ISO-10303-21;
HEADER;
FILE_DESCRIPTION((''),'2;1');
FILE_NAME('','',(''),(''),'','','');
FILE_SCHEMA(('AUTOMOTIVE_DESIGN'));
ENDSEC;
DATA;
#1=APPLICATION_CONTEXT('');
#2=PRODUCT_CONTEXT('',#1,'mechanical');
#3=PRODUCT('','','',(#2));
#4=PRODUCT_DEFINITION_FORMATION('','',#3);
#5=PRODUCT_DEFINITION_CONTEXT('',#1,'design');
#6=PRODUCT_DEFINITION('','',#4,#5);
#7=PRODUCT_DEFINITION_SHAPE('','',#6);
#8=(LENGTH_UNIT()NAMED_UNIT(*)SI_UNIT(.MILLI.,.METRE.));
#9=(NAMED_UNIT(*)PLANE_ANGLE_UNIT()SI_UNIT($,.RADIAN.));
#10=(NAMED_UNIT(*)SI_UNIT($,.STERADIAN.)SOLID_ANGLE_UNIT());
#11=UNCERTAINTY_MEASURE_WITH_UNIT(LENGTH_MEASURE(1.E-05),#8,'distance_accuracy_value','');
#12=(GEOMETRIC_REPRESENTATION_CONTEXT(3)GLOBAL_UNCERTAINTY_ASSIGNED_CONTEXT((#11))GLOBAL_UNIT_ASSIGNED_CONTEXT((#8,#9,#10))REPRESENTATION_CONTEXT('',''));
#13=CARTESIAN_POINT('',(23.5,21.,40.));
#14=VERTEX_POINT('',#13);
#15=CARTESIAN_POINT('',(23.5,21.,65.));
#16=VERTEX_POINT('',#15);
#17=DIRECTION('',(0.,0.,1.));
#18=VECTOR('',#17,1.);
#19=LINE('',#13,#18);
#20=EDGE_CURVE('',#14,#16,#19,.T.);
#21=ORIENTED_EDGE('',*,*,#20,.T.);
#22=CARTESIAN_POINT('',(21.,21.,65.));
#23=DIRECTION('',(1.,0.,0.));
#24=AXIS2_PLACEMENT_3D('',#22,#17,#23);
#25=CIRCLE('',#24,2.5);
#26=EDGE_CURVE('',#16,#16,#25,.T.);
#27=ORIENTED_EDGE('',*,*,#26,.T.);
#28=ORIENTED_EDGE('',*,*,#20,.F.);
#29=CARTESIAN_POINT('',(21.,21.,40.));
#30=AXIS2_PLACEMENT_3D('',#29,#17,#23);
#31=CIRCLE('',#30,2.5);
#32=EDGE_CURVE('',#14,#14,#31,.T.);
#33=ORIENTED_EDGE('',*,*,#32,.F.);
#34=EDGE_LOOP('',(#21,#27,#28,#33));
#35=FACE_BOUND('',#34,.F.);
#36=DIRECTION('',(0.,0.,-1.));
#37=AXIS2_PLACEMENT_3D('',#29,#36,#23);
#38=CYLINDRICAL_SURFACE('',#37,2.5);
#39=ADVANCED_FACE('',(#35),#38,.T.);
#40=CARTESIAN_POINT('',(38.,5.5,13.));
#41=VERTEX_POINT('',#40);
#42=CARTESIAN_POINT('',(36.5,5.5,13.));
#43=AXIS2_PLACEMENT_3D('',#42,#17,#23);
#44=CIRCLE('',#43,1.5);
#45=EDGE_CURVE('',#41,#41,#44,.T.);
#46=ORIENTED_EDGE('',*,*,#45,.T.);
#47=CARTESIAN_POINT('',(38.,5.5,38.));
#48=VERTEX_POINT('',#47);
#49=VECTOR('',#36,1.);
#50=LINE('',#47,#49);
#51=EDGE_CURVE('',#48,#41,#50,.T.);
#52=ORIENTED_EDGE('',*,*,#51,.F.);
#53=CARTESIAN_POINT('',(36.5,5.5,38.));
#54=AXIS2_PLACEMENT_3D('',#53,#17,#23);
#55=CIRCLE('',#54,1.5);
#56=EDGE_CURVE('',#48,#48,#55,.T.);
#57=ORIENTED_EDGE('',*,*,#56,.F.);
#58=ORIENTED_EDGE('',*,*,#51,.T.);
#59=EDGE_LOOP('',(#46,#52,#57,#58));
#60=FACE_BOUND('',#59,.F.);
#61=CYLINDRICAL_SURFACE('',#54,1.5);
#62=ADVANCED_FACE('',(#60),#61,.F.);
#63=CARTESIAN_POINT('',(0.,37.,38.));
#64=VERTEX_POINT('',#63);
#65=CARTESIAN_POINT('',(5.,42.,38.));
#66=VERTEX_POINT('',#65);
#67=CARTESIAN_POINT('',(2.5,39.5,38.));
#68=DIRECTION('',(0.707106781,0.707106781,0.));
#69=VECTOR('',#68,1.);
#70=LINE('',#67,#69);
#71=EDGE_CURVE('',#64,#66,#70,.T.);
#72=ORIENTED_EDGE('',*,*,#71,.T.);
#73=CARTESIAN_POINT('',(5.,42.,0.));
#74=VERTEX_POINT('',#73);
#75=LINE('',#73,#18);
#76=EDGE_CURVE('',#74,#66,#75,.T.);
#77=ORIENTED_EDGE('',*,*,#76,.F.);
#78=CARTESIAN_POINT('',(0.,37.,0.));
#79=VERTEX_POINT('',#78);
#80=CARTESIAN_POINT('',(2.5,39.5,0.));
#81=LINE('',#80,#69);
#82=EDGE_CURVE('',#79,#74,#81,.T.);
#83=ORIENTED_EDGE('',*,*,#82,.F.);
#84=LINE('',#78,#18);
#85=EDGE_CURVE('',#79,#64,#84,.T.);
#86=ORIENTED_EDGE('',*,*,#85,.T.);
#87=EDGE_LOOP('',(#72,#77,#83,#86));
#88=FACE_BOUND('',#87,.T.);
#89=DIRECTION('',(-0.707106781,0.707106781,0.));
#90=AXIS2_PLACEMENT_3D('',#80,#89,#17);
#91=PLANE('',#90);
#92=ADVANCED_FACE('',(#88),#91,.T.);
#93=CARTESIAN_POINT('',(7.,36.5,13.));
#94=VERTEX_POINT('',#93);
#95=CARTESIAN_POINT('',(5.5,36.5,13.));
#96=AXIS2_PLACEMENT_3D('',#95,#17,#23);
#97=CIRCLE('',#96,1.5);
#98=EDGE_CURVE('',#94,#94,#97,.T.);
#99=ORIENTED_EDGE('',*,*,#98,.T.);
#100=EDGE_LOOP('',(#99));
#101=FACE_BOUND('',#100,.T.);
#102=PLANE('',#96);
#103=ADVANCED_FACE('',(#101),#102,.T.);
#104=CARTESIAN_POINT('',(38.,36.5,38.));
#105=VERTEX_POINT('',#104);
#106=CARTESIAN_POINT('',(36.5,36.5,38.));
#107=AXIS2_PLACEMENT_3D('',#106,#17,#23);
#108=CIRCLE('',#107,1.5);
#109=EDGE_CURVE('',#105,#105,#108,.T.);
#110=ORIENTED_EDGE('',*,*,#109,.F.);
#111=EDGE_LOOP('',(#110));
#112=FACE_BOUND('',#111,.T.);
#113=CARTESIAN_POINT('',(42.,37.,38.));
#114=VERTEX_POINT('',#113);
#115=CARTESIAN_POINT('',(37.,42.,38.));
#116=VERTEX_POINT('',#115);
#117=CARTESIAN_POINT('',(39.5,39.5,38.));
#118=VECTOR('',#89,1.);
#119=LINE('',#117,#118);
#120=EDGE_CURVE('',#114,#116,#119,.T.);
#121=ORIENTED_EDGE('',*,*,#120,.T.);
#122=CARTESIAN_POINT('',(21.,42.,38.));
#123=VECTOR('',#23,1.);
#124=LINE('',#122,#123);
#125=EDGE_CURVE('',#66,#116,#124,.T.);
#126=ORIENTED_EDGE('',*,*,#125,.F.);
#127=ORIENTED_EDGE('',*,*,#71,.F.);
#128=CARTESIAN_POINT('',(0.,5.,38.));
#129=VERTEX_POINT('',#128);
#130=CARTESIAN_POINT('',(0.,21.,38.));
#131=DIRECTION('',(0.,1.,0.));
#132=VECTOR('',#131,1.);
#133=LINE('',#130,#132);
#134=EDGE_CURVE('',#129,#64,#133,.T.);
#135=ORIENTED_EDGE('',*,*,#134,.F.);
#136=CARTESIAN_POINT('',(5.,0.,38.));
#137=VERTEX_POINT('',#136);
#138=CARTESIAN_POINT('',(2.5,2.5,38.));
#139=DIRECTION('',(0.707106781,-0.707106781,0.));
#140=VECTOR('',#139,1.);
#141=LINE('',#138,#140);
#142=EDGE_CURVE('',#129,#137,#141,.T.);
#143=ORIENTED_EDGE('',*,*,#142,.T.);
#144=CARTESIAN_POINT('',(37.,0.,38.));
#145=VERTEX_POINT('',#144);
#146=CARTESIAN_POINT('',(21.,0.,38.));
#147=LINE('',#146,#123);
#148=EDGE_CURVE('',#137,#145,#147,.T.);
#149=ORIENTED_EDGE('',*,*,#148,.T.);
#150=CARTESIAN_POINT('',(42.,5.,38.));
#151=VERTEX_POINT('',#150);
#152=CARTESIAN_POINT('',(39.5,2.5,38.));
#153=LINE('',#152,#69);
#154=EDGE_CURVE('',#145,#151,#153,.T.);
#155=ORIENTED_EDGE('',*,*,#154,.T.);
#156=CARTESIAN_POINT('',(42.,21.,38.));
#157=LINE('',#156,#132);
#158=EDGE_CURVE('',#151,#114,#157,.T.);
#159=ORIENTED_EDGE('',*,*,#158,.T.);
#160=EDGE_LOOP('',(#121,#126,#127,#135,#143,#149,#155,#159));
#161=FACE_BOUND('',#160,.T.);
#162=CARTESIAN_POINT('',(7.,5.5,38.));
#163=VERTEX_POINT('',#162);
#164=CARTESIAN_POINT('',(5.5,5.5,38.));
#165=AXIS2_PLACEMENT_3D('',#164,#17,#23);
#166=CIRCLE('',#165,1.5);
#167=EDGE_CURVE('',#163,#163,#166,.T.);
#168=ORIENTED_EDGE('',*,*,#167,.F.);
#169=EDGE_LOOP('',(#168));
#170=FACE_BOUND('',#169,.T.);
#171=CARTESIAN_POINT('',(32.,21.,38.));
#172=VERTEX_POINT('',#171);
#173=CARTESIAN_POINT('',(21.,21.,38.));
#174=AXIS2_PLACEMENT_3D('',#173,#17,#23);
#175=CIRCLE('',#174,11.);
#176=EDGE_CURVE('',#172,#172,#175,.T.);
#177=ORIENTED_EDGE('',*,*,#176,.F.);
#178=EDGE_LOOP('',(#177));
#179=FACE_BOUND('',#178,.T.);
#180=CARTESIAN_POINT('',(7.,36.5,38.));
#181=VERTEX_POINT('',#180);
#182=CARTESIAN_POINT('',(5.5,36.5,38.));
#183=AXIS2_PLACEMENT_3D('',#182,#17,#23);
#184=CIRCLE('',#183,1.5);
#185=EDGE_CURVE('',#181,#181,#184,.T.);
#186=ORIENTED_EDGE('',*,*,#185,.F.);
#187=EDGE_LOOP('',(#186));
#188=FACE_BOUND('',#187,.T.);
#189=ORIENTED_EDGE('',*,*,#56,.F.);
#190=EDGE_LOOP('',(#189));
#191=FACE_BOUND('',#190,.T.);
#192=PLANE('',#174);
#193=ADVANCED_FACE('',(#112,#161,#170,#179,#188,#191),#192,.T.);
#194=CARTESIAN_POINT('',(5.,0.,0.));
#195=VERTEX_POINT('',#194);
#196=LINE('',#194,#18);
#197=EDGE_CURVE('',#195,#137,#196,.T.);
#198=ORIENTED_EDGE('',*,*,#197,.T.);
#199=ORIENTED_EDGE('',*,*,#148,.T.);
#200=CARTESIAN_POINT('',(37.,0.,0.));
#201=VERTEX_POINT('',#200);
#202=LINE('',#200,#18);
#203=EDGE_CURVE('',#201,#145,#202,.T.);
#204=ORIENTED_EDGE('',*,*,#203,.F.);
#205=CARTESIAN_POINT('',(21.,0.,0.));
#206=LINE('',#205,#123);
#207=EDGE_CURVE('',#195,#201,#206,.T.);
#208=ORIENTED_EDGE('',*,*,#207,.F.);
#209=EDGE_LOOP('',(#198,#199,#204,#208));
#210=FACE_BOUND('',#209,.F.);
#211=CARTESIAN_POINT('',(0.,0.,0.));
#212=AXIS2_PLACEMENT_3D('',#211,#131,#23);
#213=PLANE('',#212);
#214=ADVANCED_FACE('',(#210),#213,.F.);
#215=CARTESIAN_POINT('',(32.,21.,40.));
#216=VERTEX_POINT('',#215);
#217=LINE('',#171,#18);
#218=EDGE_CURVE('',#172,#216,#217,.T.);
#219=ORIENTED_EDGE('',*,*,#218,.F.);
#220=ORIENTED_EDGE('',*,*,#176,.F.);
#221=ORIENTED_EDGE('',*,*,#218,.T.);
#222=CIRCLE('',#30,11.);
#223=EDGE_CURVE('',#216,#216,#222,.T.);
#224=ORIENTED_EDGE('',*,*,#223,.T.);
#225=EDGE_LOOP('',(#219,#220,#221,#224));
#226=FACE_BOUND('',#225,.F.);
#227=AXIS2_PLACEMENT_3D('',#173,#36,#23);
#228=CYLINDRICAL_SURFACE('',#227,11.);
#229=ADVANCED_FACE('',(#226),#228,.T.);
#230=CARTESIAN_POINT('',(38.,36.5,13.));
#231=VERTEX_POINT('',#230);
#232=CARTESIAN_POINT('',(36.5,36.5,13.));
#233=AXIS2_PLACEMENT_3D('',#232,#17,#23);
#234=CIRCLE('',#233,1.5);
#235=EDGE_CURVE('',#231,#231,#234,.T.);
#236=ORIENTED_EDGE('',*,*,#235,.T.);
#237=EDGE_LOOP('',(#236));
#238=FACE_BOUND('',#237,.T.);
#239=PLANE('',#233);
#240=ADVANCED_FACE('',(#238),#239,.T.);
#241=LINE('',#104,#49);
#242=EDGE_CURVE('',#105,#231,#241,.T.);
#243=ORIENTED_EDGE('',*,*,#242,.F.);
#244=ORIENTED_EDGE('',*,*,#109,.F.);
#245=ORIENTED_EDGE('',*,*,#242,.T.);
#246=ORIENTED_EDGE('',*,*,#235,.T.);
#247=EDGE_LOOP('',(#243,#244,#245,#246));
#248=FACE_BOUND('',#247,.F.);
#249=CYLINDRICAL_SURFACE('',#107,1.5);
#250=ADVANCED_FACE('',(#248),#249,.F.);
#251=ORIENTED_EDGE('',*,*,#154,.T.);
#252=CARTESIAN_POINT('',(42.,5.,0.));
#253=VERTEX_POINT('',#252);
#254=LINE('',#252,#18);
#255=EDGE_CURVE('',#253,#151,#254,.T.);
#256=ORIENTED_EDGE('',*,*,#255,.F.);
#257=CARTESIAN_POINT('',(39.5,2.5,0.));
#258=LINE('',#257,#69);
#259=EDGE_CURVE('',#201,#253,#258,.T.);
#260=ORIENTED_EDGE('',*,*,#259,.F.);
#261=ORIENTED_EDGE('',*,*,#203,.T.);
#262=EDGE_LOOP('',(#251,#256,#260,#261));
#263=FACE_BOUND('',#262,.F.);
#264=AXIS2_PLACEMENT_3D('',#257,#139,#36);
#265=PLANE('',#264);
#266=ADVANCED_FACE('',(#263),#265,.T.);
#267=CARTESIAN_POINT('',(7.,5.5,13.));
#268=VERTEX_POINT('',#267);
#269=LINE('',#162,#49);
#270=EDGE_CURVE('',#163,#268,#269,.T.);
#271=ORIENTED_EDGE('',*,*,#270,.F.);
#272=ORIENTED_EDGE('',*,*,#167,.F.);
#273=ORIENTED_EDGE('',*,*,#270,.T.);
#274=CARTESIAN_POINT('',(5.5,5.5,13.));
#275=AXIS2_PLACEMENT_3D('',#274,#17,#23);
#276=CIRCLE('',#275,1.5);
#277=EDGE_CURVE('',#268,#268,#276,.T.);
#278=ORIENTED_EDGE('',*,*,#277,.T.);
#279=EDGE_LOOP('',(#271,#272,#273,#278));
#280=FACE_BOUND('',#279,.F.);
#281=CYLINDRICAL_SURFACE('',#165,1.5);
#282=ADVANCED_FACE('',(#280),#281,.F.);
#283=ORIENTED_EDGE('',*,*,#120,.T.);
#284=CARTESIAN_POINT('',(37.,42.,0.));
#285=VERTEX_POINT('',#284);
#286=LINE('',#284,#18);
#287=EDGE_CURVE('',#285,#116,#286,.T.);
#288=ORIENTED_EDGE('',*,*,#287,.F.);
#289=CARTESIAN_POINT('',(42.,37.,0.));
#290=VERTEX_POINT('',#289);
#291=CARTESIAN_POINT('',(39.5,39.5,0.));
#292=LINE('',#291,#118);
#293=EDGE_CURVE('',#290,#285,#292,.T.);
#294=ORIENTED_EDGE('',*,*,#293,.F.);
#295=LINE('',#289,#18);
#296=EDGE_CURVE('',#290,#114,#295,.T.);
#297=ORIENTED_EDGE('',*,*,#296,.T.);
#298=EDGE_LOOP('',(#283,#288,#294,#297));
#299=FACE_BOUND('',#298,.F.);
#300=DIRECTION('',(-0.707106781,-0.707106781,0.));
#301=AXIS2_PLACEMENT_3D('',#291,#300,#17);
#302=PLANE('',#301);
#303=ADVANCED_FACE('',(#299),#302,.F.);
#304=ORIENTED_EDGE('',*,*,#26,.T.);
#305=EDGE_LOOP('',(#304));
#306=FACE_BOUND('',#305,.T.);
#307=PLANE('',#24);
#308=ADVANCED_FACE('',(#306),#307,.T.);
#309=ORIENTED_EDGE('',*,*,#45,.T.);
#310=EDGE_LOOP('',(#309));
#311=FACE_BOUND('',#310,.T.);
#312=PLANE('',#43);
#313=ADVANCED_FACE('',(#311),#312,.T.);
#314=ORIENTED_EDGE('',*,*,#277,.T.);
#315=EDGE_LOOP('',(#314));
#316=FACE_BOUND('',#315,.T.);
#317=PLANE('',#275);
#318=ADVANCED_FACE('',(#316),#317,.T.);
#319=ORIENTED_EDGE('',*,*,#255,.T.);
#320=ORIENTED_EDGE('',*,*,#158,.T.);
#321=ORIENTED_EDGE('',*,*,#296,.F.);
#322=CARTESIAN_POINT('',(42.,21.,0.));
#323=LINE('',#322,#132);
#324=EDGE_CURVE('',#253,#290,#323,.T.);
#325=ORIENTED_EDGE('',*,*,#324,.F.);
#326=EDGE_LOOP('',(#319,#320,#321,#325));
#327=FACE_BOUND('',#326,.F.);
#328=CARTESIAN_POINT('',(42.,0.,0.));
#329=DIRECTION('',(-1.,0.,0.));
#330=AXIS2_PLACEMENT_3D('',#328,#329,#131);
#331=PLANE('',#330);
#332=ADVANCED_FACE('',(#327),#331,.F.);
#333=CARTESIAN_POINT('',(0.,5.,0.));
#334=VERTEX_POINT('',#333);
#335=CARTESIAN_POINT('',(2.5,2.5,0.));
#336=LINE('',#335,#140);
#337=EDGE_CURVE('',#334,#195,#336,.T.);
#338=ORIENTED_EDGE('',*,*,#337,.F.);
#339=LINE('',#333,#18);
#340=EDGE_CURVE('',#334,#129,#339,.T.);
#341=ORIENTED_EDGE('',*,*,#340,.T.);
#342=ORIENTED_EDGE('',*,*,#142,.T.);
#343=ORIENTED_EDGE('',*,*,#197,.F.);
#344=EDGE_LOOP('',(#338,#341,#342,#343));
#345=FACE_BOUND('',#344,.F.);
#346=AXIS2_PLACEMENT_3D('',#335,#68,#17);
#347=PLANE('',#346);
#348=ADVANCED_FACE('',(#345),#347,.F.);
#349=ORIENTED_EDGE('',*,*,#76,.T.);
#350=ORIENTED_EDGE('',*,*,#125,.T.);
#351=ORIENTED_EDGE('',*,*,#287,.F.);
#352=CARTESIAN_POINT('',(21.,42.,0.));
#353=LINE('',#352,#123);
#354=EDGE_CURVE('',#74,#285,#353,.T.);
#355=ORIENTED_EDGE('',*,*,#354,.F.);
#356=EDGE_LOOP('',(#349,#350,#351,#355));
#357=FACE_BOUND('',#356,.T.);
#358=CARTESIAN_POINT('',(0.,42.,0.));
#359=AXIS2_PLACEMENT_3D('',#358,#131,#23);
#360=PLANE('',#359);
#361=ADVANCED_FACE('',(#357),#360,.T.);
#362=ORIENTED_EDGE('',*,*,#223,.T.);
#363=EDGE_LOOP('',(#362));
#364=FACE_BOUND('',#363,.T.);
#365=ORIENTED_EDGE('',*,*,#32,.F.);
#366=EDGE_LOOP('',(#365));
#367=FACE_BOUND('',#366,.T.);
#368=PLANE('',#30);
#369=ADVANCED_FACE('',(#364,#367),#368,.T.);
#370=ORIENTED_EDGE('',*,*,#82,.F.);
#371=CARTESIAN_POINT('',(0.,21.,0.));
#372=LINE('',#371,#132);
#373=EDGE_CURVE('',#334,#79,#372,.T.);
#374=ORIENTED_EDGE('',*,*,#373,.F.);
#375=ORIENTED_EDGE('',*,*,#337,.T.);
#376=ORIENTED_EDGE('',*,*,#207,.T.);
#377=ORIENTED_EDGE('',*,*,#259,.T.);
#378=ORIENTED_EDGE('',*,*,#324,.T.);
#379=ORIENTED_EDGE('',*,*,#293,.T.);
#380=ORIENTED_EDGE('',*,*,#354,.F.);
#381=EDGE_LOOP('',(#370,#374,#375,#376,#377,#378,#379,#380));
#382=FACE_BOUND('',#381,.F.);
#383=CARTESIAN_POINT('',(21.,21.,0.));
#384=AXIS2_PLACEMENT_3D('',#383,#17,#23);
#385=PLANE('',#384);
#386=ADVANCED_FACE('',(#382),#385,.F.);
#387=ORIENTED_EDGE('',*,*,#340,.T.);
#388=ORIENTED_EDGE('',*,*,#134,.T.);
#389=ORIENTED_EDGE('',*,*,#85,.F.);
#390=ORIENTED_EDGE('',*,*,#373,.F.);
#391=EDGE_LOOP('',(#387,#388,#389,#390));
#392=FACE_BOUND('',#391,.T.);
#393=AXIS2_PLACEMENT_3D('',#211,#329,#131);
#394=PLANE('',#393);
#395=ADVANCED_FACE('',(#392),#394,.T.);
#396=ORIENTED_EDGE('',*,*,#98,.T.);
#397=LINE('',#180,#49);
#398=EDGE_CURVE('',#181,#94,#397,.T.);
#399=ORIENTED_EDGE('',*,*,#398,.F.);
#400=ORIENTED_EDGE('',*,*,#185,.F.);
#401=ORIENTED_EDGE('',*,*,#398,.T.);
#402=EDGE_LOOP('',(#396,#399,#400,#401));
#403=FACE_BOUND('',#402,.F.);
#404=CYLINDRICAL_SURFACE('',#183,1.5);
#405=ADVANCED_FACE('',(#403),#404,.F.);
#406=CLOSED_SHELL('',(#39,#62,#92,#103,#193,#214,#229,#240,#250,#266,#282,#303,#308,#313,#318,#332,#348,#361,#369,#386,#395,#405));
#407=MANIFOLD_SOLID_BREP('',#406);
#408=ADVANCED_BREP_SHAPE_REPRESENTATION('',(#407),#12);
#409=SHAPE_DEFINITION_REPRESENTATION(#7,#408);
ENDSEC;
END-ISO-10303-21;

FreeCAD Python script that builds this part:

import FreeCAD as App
import Part
import Sketcher

V = App.Vector
Q = App.Units.Quantity


def edges_at(feature, points):
    """Names of the edges that pass closest to the given points."""
    edges = feature.Shape.Edges
    near = lambda p: min(range(len(edges)), key=lambda i: edges[i].distToShape(Part.Vertex(*p))[0])
    return sorted({f"Edge{near(p) + 1}" for p in points})

doc = App.newDocument("Part")
body = doc.addObject("PartDesign::Body", "Body")

sketch1 = body.newObject("Sketcher::SketchObject", "Sketch")
sketch1.AttachmentSupport = (doc.getObject("XY_Plane"), [""])
sketch1.MapMode = "FlatFace"
sketch1.addGeometry([
    Part.LineSegment(V(0, 42, 0), V(0, 0, 0)),
    Part.LineSegment(V(0, 0, 0), V(42, 0, 0)),
    Part.LineSegment(V(42, 0, 0), V(42, 42, 0)),
    Part.LineSegment(V(42, 42, 0), V(0, 42, 0)),
], False)
sketch1.addConstraint([
    Sketcher.Constraint("Coincident", 0, 2, 1, 1),
    Sketcher.Constraint("Coincident", 1, 2, 2, 1),
    Sketcher.Constraint("Coincident", 2, 2, 3, 1),
    Sketcher.Constraint("Coincident", 3, 2, 0, 1),
    Sketcher.Constraint("Vertical", 0),
    Sketcher.Constraint("Horizontal", 1),
    Sketcher.Constraint("Vertical", 2),
    Sketcher.Constraint("Horizontal", 3),
    Sketcher.Constraint("Coincident", 0, 2, -1, 1),
    Sketcher.Constraint("Equal", 3, 0),
    Sketcher.Constraint("DistanceX", 1, 1, 1, 2, Q("42 mm")),
])
pad1 = body.newObject("PartDesign::Pad", "Pad")
pad1.Profile = sketch1
pad1.Length = 38
doc.recompute()

chamfer = body.newObject("PartDesign::Chamfer", "Chamfer")
chamfer.Base = (pad1, edges_at(pad1, [
    (0, 0, 19),
    (0, 42, 19),
    (42, 0, 19),
    (42, 42, 19),
]))
chamfer.Size = 5

sketch2 = body.newObject("Sketcher::SketchObject", "Sketch001")
sketch2.AttachmentSupport = (doc.getObject("XY_Plane"), [""])
sketch2.MapMode = "FlatFace"
sketch2.AttachmentOffset = App.Placement(V(0, 0, 38), App.Rotation())
sketch2.addGeometry(Part.Circle(V(21, 21, 0), V(0, 0, 1), 11), False)
sketch2.addConstraint([
    Sketcher.Constraint("Diameter", 0, Q("22 mm")),
    Sketcher.Constraint("DistanceX", -1, 1, 0, 3, Q("21 mm")),
    Sketcher.Constraint("DistanceY", -1, 1, 0, 3, Q("21 mm")),
])
pad2 = body.newObject("PartDesign::Pad", "Pad001")
pad2.Profile = sketch2
pad2.Length = 2

sketch3 = body.newObject("Sketcher::SketchObject", "Sketch002")
sketch3.AttachmentSupport = (doc.getObject("XY_Plane"), [""])
sketch3.MapMode = "FlatFace"
sketch3.AttachmentOffset = App.Placement(V(0, 0, 40), App.Rotation())
sketch3.addGeometry(Part.Circle(V(21, 21, 0), V(0, 0, 1), 2.5), False)
sketch3.addConstraint([
    Sketcher.Constraint("Diameter", 0, Q("5 mm")),
    Sketcher.Constraint("DistanceX", -1, 1, 0, 3, Q("21 mm")),
    Sketcher.Constraint("DistanceY", -1, 1, 0, 3, Q("21 mm")),
])
pad3 = body.newObject("PartDesign::Pad", "Pad002")
pad3.Profile = sketch3
pad3.Length = 25

sketch4 = body.newObject("Sketcher::SketchObject", "Sketch003")
sketch4.AttachmentSupport = (doc.getObject("XY_Plane"), [""])
sketch4.MapMode = "FlatFace"
sketch4.AttachmentOffset = App.Placement(V(0, 0, 38), App.Rotation())
sketch4.addGeometry([
    Part.Circle(V(5.5, 36.5, 0), V(0, 0, 1), 1.5),
    Part.Circle(V(5.5, 5.5, 0), V(0, 0, 1), 1.5),
    Part.Circle(V(36.5, 36.5, 0), V(0, 0, 1), 1.5),
    Part.Circle(V(36.5, 5.5, 0), V(0, 0, 1), 1.5),
], False)
sketch4.addConstraint([
    Sketcher.Constraint("Equal", 0, 1),
    Sketcher.Constraint("Equal", 1, 2),
    Sketcher.Constraint("Equal", 2, 3),
    Sketcher.Constraint("Horizontal", 0, 3, 2, 3),
    Sketcher.Constraint("Horizontal", 1, 3, 3, 3),
    Sketcher.Constraint("Vertical", 0, 3, 1, 3),
    Sketcher.Constraint("Vertical", 2, 3, 3, 3),
    Sketcher.Constraint("Diameter", 0, Q("3 mm")),
    Sketcher.Constraint("DistanceY", 1, 3, 0, 3, Q("31 mm")),
    Sketcher.Constraint("DistanceX", 0, 3, 2, 3, Q("31 mm")),
    Sketcher.Constraint("DistanceX", -1, 1, 0, 3, Q("5.5 mm")),
    Sketcher.Constraint("DistanceY", -1, 1, 0, 3, Q("36.5 mm")),
])
pocket1 = body.newObject("PartDesign::Pocket", "Pocket")
pocket1.Profile = sketch4
pocket1.Length = 25

doc.recompute()
